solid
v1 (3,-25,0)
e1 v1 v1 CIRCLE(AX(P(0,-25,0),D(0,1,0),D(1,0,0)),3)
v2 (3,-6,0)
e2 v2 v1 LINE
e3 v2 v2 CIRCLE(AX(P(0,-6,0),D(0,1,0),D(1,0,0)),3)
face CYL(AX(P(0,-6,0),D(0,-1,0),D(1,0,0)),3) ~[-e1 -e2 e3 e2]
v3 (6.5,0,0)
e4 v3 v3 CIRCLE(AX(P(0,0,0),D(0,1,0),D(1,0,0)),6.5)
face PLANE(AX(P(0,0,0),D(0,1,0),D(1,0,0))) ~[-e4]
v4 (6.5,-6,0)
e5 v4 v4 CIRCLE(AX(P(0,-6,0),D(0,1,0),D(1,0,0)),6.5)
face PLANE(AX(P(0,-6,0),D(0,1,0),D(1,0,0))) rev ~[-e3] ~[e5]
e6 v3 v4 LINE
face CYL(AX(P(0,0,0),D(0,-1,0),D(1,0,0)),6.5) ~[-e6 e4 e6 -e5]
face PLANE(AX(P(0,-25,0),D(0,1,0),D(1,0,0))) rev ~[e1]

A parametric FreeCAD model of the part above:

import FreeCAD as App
import Part
import Sketcher
from FreeCAD import Vector
Q = App.Units.Quantity

doc = App.newDocument("Part")
body = doc.addObject("PartDesign::Body", "Body")

# Sketch on XY plane
sketch1 = body.newObject("Sketcher::SketchObject", "Sketch")
sketch1.AttachmentSupport = (doc.getObject("XY_Plane"), [""])
sketch1.MapMode = "FlatFace"
sketch1.addGeometry([
    Part.LineSegment(Vector(6.5, 0, 0), Vector(0, 0, 0)),  # 0
    Part.LineSegment(Vector(0, 0, 0), Vector(0, -25, 0)),  # 1
    Part.LineSegment(Vector(0, -25, 0), Vector(3, -25, 0)),  # 2
    Part.LineSegment(Vector(3, -25, 0), Vector(3, -6, 0)),  # 3
    Part.LineSegment(Vector(3, -6, 0), Vector(6.5, -6, 0)),  # 4
    Part.LineSegment(Vector(6.5, -6, 0), Vector(6.5, 0, 0)),  # 5
], False)
sketch1.addConstraint([
    Sketcher.Constraint("Coincident", 0, 2, 1, 1),
    Sketcher.Constraint("Coincident", 1, 2, 2, 1),
    Sketcher.Constraint("Coincident", 2, 2, 3, 1),
    Sketcher.Constraint("Coincident", 3, 2, 4, 1),
    Sketcher.Constraint("Coincident", 4, 2, 5, 1),
    Sketcher.Constraint("Coincident", 5, 2, 0, 1),
    Sketcher.Constraint("Horizontal", 0),
    Sketcher.Constraint("Vertical", 1),
    Sketcher.Constraint("Horizontal", 2),
    Sketcher.Constraint("Vertical", 3),
    Sketcher.Constraint("Horizontal", 4),
    Sketcher.Constraint("Vertical", 5),
    Sketcher.Constraint("Coincident", 0, 2, -1, 1),
    Sketcher.Constraint("DistanceX", 2, 1, 2, 2, Q("3 mm")),
    Sketcher.Constraint("DistanceY", 3, 1, 3, 2, Q("19 mm")),
    Sketcher.Constraint("DistanceY", 5, 1, 5, 2, Q("6 mm")),
    Sketcher.Constraint("DistanceX", 0, 2, 0, 1, Q("6.5 mm")),
])
revolution = body.newObject("PartDesign::Revolution", "Revolution")
revolution.Profile = sketch1
revolution.ReferenceAxis = (sketch1, ["V_Axis"])
revolution.Angle = 360

doc.recompute()
